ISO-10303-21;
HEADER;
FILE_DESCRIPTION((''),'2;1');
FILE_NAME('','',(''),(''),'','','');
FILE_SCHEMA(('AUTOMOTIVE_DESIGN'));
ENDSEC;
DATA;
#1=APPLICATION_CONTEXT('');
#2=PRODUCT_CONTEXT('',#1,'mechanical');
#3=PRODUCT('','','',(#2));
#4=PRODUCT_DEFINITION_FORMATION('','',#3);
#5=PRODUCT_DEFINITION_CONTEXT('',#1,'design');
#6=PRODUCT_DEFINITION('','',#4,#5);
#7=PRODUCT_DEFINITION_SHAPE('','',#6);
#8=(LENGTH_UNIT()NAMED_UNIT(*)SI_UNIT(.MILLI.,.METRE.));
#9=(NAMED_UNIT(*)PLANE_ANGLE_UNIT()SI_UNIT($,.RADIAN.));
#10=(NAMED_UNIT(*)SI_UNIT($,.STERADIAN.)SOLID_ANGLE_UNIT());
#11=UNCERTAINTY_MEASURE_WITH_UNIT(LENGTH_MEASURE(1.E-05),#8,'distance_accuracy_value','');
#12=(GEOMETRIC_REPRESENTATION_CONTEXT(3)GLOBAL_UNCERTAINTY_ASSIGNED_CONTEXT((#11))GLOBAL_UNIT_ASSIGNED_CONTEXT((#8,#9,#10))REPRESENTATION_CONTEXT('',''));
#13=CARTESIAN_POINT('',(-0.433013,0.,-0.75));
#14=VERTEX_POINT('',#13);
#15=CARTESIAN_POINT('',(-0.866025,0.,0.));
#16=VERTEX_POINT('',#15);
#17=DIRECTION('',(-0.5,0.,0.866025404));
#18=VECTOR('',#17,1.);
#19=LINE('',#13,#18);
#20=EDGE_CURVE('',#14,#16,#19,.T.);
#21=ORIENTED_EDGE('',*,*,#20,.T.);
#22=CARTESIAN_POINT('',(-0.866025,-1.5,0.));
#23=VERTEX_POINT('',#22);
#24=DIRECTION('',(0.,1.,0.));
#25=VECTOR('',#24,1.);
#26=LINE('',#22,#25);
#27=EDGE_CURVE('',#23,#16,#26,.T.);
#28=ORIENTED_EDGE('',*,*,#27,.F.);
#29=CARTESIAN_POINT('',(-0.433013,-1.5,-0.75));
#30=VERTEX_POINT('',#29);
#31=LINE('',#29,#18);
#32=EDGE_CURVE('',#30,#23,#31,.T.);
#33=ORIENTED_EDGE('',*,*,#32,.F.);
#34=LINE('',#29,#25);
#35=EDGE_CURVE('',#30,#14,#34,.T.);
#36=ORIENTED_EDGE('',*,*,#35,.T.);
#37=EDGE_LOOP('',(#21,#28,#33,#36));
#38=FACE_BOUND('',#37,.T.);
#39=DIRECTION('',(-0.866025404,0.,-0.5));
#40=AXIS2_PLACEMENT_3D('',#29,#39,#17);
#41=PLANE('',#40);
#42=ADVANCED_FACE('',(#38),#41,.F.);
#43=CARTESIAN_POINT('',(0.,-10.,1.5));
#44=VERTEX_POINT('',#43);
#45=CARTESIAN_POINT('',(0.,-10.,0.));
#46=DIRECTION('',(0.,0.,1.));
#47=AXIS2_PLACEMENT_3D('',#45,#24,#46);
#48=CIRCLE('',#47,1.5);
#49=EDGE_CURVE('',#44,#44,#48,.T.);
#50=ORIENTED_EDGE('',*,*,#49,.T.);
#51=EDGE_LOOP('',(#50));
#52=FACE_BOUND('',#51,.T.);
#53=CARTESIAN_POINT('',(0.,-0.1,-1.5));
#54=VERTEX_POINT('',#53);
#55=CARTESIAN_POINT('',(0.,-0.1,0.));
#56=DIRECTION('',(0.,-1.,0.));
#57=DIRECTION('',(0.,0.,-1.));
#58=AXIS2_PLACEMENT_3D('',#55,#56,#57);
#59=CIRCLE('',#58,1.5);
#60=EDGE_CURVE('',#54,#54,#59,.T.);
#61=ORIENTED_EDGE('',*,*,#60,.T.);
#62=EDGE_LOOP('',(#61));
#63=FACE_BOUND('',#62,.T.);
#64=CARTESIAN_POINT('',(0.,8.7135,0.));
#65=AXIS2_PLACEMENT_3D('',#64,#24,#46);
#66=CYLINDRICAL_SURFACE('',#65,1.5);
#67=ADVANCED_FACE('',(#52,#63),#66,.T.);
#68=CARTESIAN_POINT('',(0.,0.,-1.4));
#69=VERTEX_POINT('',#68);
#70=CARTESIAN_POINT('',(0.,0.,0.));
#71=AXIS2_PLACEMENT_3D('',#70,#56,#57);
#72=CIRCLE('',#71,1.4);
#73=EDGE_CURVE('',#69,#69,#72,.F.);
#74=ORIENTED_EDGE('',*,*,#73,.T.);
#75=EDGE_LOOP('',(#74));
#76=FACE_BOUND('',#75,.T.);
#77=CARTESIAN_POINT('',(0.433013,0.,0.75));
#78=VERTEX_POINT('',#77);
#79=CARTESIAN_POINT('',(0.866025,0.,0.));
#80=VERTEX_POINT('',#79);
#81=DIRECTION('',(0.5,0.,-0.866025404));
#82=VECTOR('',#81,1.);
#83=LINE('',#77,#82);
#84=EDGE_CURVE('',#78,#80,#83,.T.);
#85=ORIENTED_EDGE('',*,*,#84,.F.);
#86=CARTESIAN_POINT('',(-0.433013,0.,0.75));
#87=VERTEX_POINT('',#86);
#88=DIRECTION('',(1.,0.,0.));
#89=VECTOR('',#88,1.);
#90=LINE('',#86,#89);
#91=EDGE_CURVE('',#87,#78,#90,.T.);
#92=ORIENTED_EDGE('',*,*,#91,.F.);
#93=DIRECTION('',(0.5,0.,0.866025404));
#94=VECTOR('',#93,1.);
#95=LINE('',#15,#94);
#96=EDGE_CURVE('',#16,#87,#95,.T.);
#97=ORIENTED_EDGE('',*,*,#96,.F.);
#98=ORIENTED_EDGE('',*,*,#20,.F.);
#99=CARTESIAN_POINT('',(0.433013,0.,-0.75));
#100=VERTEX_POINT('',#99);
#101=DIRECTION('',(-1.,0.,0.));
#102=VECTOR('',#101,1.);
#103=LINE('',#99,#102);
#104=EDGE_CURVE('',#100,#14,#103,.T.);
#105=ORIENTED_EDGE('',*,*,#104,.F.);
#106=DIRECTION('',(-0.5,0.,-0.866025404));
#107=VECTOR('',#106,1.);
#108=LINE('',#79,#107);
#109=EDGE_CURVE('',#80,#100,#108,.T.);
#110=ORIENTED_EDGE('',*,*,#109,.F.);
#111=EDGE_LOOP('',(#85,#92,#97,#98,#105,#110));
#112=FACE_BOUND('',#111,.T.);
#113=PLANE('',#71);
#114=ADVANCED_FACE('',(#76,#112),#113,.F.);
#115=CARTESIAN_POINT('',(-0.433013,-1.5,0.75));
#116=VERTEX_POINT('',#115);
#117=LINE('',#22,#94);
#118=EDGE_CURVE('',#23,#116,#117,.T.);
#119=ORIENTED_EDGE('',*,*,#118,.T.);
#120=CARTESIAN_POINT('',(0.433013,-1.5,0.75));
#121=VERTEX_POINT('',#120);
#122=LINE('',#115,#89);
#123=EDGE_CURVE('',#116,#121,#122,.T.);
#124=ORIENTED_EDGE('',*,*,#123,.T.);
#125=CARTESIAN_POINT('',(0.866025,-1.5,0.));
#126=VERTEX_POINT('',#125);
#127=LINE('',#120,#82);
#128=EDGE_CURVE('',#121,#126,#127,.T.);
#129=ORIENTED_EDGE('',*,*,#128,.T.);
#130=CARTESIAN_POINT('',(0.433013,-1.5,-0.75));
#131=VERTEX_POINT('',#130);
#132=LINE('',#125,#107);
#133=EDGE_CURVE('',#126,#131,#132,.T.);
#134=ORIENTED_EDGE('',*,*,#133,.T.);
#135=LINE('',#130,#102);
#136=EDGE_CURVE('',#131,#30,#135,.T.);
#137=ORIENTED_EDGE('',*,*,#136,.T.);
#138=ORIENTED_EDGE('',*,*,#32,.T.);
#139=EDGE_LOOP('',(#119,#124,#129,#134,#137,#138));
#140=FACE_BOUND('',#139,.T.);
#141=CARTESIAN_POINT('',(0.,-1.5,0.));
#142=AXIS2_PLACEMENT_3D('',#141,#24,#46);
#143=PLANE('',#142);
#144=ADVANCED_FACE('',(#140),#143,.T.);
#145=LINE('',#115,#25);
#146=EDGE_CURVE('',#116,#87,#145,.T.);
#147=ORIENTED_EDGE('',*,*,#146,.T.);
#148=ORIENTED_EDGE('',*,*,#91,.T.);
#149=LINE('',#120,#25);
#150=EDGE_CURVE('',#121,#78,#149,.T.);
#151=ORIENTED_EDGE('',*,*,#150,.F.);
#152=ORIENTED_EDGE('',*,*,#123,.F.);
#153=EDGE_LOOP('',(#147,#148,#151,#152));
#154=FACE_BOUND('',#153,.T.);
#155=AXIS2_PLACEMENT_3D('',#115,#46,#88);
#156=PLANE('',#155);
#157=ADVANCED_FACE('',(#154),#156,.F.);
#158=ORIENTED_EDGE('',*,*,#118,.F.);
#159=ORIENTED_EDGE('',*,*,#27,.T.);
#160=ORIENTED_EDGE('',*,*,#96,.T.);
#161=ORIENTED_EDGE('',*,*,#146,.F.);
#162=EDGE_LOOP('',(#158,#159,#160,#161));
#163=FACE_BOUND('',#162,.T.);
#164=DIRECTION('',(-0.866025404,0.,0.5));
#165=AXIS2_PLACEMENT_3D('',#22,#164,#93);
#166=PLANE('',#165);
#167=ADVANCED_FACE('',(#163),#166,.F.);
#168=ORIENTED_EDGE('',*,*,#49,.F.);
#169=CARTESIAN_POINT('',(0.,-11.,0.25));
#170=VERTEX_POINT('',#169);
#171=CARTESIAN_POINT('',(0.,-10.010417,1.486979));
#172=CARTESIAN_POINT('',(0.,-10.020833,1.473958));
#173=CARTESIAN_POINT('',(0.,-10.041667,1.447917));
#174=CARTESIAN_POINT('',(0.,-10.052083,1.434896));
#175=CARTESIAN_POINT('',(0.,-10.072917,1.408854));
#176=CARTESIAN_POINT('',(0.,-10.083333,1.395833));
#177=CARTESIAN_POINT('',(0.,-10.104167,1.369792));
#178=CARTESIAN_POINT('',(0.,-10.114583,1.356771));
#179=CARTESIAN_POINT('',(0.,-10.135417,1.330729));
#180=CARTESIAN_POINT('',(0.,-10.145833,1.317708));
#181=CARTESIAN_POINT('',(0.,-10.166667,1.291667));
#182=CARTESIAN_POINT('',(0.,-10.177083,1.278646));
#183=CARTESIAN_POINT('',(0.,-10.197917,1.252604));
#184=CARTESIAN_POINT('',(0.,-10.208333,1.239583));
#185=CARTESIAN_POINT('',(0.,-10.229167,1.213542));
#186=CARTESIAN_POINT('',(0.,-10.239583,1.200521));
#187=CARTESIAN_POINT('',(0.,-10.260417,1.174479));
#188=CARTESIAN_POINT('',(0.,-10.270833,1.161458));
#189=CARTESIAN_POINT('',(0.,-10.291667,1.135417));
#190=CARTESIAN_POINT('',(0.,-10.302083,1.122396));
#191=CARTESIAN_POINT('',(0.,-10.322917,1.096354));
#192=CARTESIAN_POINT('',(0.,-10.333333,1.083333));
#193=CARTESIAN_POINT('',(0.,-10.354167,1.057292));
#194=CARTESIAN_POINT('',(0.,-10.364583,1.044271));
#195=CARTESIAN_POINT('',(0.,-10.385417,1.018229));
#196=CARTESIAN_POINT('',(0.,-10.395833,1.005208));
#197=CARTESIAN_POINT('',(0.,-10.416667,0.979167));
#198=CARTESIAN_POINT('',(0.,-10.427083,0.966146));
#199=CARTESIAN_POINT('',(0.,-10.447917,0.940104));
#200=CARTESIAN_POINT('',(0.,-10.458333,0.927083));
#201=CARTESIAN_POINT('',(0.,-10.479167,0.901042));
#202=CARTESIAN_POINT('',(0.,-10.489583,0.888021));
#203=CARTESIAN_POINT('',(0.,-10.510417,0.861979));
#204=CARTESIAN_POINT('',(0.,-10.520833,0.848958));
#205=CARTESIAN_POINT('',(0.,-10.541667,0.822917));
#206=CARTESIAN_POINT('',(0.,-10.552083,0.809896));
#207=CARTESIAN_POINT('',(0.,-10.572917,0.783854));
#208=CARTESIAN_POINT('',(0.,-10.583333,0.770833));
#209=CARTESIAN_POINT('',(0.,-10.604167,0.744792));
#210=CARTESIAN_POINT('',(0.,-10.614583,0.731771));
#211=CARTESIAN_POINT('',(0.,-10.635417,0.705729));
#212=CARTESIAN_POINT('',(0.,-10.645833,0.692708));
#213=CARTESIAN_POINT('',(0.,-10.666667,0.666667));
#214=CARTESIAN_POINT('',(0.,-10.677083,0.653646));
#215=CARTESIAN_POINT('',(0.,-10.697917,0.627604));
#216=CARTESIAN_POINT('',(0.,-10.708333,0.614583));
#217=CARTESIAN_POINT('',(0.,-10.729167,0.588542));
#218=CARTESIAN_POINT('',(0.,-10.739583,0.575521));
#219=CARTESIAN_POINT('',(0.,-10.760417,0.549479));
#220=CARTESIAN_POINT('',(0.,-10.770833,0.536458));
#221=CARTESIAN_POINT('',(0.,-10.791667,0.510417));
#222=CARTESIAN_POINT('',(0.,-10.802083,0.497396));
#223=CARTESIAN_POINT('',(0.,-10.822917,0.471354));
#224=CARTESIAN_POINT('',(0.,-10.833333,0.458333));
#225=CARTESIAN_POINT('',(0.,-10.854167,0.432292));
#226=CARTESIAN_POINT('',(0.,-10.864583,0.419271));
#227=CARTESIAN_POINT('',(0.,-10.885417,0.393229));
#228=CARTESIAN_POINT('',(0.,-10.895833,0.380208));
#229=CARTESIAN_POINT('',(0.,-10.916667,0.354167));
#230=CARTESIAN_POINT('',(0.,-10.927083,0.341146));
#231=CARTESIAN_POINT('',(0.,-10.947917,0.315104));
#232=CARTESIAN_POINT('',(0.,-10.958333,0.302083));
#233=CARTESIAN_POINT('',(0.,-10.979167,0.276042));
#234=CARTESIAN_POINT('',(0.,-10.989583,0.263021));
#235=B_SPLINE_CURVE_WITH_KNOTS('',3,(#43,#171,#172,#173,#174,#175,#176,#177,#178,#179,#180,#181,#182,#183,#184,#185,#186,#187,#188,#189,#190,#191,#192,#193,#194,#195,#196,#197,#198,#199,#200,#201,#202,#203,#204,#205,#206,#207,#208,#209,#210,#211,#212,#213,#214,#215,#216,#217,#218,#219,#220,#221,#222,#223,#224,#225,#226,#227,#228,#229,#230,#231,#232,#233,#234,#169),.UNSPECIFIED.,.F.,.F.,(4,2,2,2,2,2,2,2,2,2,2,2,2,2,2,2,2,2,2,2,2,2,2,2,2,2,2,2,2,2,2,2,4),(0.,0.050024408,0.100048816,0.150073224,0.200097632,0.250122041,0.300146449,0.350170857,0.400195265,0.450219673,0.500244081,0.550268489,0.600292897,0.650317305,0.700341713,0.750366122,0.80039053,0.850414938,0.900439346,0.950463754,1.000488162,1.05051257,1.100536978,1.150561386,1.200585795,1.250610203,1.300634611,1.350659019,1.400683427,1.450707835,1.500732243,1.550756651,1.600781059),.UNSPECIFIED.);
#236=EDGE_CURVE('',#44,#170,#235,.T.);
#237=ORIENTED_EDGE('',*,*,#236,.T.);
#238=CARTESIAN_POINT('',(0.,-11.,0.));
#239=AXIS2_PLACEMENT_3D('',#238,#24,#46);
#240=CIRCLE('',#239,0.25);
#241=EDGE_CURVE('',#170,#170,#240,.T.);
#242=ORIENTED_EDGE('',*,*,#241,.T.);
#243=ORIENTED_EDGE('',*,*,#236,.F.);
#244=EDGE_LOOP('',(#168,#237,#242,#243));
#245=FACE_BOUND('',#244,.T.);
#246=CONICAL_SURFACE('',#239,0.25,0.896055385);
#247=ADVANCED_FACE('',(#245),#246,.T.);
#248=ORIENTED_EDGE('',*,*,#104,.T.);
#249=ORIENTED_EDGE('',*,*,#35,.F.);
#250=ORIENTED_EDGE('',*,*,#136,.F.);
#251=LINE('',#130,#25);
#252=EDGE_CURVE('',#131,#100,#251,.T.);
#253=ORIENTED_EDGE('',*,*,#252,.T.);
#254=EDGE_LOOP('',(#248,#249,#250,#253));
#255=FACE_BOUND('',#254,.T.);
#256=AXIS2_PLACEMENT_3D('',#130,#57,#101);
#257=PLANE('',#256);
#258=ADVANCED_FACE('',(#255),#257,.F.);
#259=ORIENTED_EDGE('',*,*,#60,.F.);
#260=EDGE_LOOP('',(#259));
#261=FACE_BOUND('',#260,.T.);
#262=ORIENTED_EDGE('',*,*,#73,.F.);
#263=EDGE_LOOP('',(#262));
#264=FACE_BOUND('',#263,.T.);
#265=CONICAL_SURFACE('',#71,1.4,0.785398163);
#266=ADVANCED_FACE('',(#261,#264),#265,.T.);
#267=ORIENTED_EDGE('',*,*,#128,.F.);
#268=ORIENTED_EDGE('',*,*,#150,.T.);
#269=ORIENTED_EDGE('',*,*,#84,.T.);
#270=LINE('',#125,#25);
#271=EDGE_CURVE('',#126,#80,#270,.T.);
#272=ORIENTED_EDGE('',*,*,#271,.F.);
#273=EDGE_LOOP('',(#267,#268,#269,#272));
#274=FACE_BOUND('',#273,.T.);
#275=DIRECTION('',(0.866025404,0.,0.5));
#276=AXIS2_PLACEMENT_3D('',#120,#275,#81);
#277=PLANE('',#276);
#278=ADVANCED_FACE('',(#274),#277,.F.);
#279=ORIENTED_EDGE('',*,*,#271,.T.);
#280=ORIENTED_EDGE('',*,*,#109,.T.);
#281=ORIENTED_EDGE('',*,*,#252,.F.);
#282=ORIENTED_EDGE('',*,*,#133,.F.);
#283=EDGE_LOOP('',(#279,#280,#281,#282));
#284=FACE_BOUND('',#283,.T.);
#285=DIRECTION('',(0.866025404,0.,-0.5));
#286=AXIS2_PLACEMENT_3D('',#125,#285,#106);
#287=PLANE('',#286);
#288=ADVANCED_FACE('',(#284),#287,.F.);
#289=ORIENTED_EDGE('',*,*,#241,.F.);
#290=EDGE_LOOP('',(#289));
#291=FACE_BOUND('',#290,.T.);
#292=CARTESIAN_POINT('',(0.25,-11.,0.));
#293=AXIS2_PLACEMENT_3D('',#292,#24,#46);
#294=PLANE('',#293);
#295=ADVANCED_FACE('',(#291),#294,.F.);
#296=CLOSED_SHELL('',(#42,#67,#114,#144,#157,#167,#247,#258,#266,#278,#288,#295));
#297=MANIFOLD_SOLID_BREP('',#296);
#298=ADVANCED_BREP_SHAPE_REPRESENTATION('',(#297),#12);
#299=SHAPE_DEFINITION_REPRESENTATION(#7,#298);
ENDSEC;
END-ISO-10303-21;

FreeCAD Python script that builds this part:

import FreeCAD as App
import Part
import Sketcher
Q = App.Units.Quantity


def edges_at(feature, points):
    """Names of the edges that pass closest to the given points."""
    edges = feature.Shape.Edges
    near = lambda p: min(range(len(edges)), key=lambda i: edges[i].distToShape(Part.Vertex(*p))[0])
    return sorted({f"Edge{near(p) + 1}" for p in points})


def add_polygon(sketch, points):
    """Adds a closed chain of lines whose ends are joined by coincident constraints."""
    first, n = sketch.GeometryCount, len(points)
    for a, b in zip(points, points[1:] + points[:1]):
        sketch.addGeometry(Part.LineSegment(App.Vector(*a, 0), App.Vector(*b, 0)), False)
    for i in range(n):
        sketch.addConstraint(Sketcher.Constraint("Coincident", first + i, 2, first + (i + 1) % n, 1))

doc = App.newDocument("Part")
body = doc.addObject("PartDesign::Body", "Body")

# Sketch on XY plane
sketch1 = body.newObject("Sketcher::SketchObject", "Sketch")
sketch1.AttachmentSupport = (doc.getObject("XY_Plane"), [""])
sketch1.MapMode = "FlatFace"
add_polygon(sketch1, [(1.5, 0), (0, 0), (0, -11), (0.25, -11), (1.5, -10)])  # lines 0-4
sketch1.addConstraint([
    Sketcher.Constraint("Horizontal", 0),
    Sketcher.Constraint("Vertical", 1),
    Sketcher.Constraint("Horizontal", 2),
    Sketcher.Constraint("Vertical", 4),
    Sketcher.Constraint("Coincident", 0, 2, -1, 1),
    Sketcher.Constraint("DistanceY", 1, 2, 1, 1, Q("11 mm")),
    Sketcher.Constraint("DistanceY", 4, 1, 4, 2, Q("10 mm")),
    Sketcher.Constraint("DistanceX", 0, 2, 0, 1, Q("1.5 mm")),
    Sketcher.Constraint("DistanceX", 2, 1, 2, 2, Q("0.25 mm")),
])
revolution = body.newObject("PartDesign::Revolution", "Revolution")
revolution.Profile = sketch1
revolution.ReferenceAxis = (sketch1, ["V_Axis"])
revolution.Angle = 360

# Sketch on XZ plane
sketch2 = body.newObject("Sketcher::SketchObject", "Sketch001")
sketch2.AttachmentSupport = (doc.getObject("XZ_Plane"), [""])
sketch2.MapMode = "FlatFace"
add_polygon(sketch2, [(-0.433013, 0.75), (0.433013, 0.75), (0.866025, 0), (0.433013, -0.75), (-0.433013, -0.75), (-0.866025, 0)])  # lines 0-5
sketch2.addConstraint([
    Sketcher.Constraint("Horizontal", 0),
    Sketcher.Constraint("Horizontal", 3),
    Sketcher.Constraint("Symmetric", 0, 2, 3, 2, -1, 1),
    Sketcher.Constraint("Symmetric", 1, 2, 4, 2, -1, 1),
    Sketcher.Constraint("PointOnObject", 1, 2, -1),
    Sketcher.Constraint("Parallel", 2, 5),
    Sketcher.Constraint("Vertical", 0, 2, 2, 2),
    Sketcher.Constraint("Angle", 1, Q("-60 deg")),
    Sketcher.Constraint("DistanceY", 2, 2, 0, 2, Q("1.5 mm")),
    Sketcher.Constraint("DistanceX", 0, 1, 0, 2, Q("0.866025 mm")),
])
pocket1 = body.newObject("PartDesign::Pocket", "Pocket")
pocket1.Profile = sketch2
pocket1.Length = 1.5
pocket1.Reversed = True
doc.recompute()

chamfer = body.newObject("PartDesign::Chamfer", "Chamfer")
chamfer.Base = (pocket1, edges_at(pocket1, [(0, 0, -1.5)]))
chamfer.Size = 0.1

doc.recompute()
